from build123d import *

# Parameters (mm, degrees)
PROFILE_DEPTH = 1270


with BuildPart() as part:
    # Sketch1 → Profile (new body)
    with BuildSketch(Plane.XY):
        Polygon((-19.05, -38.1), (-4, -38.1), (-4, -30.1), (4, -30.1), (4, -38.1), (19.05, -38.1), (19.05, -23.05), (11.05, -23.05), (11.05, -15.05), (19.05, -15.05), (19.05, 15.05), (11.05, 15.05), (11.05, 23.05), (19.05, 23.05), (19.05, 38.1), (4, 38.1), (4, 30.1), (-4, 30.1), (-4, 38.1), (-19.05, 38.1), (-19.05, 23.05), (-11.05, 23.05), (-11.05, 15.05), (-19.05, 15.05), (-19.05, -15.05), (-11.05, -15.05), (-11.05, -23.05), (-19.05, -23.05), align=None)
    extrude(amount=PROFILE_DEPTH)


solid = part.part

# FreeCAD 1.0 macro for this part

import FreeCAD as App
import Part
import Sketcher

V = App.Vector
Q = App.Units.Quantity

doc = App.newDocument("Part")
body = doc.addObject("PartDesign::Body", "Body")

# Sketch on XY plane
sketch1 = body.newObject("Sketcher::SketchObject", "Sketch")
sketch1.AttachmentSupport = (doc.getObject("XY_Plane"), [""])
sketch1.MapMode = "FlatFace"
sketch1.addGeometry([
    Part.LineSegment(V(-19, -38, 0), V(-4, -38, 0)),  # 0
    Part.LineSegment(V(-4, -38, 0), V(-4, -30, 0)),  # 1
    Part.LineSegment(V(-4, -30, 0), V(4, -30, 0)),  # 2
    Part.LineSegment(V(4, -30, 0), V(4, -38, 0)),  # 3
    Part.LineSegment(V(4, -38, 0), V(19, -38, 0)),  # 4
    Part.LineSegment(V(19, -38, 0), V(19, -23, 0)),  # 5
    Part.LineSegment(V(19, -23, 0), V(11, -23, 0)),  # 6
    Part.LineSegment(V(11, -23, 0), V(11, -15, 0)),  # 7
    Part.LineSegment(V(11, -15, 0), V(19, -15, 0)),  # 8
    Part.LineSegment(V(19, -15, 0), V(19, 15, 0)),  # 9
    Part.LineSegment(V(19, 15, 0), V(11, 15, 0)),  # 10
    Part.LineSegment(V(11, 15, 0), V(11, 23, 0)),  # 11
    Part.LineSegment(V(11, 23, 0), V(19, 23, 0)),  # 12
    Part.LineSegment(V(19, 23, 0), V(19, 38, 0)),  # 13
    Part.LineSegment(V(19, 38, 0), V(4, 38, 0)),  # 14
    Part.LineSegment(V(4, 38, 0), V(4, 30, 0)),  # 15
    Part.LineSegment(V(4, 30, 0), V(-4, 30, 0)),  # 16
    Part.LineSegment(V(-4, 30, 0), V(-4, 38, 0)),  # 17
    Part.LineSegment(V(-4, 38, 0), V(-19, 38, 0)),  # 18
    Part.LineSegment(V(-19, 38, 0), V(-19, 23, 0)),  # 19
    Part.LineSegment(V(-19, 23, 0), V(-11, 23, 0)),  # 20
    Part.LineSegment(V(-11, 23, 0), V(-11, 15, 0)),  # 21
    Part.LineSegment(V(-11, 15, 0), V(-19, 15, 0)),  # 22
    Part.LineSegment(V(-19, 15, 0), V(-19, -15, 0)),  # 23
    Part.LineSegment(V(-19, -15, 0), V(-11, -15, 0)),  # 24
    Part.LineSegment(V(-11, -15, 0), V(-11, -23, 0)),  # 25
    Part.LineSegment(V(-11, -23, 0), V(-19, -23, 0)),  # 26
    Part.LineSegment(V(-19, -23, 0), V(-19, -38, 0)),  # 27
], False)
sketch1.addConstraint([
    Sketcher.Constraint("Coincident", 0, 2, 1, 1),
    Sketcher.Constraint("Coincident", 1, 2, 2, 1),
    Sketcher.Constraint("Coincident", 2, 2, 3, 1),
    Sketcher.Constraint("Coincident", 3, 2, 4, 1),
    Sketcher.Constraint("Coincident", 4, 2, 5, 1),
    Sketcher.Constraint("Coincident", 5, 2, 6, 1),
    Sketcher.Constraint("Coincident", 6, 2, 7, 1),
    Sketcher.Constraint("Coincident", 7, 2, 8, 1),
    Sketcher.Constraint("Coincident", 8, 2, 9, 1),
    Sketcher.Constraint("Coincident", 9, 2, 10, 1),
    Sketcher.Constraint("Coincident", 10, 2, 11, 1),
    Sketcher.Constraint("Coincident", 11, 2, 12, 1),
    Sketcher.Constraint("Coincident", 12, 2, 13, 1),
    Sketcher.Constraint("Coincident", 13, 2, 14, 1),
    Sketcher.Constraint("Coincident", 14, 2, 15, 1),
    Sketcher.Constraint("Coincident", 15, 2, 16, 1),
    Sketcher.Constraint("Coincident", 16, 2, 17, 1),
    Sketcher.Constraint("Coincident", 17, 2, 18, 1),
    Sketcher.Constraint("Coincident", 18, 2, 19, 1),
    Sketcher.Constraint("Coincident", 19, 2, 20, 1),
    Sketcher.Constraint("Coincident", 20, 2, 21, 1),
    Sketcher.Constraint("Coincident", 21, 2, 22, 1),
    Sketcher.Constraint("Coincident", 22, 2, 23, 1),
    Sketcher.Constraint("Coincident", 23, 2, 24, 1),
    Sketcher.Constraint("Coincident", 24, 2, 25, 1),
    Sketcher.Constraint("Coincident", 25, 2, 26, 1),
    Sketcher.Constraint("Coincident", 26, 2, 27, 1),
    Sketcher.Constraint("Coincident", 27, 2, 0, 1),
    Sketcher.Constraint("Horizontal", 0),
    Sketcher.Constraint("Vertical", 1),
    Sketcher.Constraint("Horizontal", 2),
    Sketcher.Constraint("Vertical", 3),
    Sketcher.Constraint("Horizontal", 4),
    Sketcher.Constraint("Vertical", 5),
    Sketcher.Constraint("Horizontal", 6),
    Sketcher.Constraint("Vertical", 7),
    Sketcher.Constraint("Horizontal", 8),
    Sketcher.Constraint("Vertical", 9),
    Sketcher.Constraint("Horizontal", 10),
    Sketcher.Constraint("Vertical", 11),
    Sketcher.Constraint("Horizontal", 12),
    Sketcher.Constraint("Vertical", 13),
    Sketcher.Constraint("Horizontal", 14),
    Sketcher.Constraint("Vertical", 15),
    Sketcher.Constraint("Horizontal", 16),
    Sketcher.Constraint("Vertical", 17),
    Sketcher.Constraint("Horizontal", 18),
    Sketcher.Constraint("Vertical", 19),
    Sketcher.Constraint("Horizontal", 20),
    Sketcher.Constraint("Vertical", 21),
    Sketcher.Constraint("Horizontal", 22),
    Sketcher.Constraint("Vertical", 23),
    Sketcher.Constraint("Horizontal", 24),
    Sketcher.Constraint("Vertical", 25),
    Sketcher.Constraint("Horizontal", 26),
    Sketcher.Constraint("Vertical", 27),
    Sketcher.Constraint("Symmetric", 0, 2, 14, 2, -1, 1),
    Sketcher.Constraint("Symmetric", 2, 2, 16, 2, -1, 1),
    Sketcher.Constraint("Symmetric", 4, 2, 18, 2, -1, 1),
    Sketcher.Constraint("Symmetric", 6, 2, 20, 2, -1, 1),
    Sketcher.Constraint("Symmetric", 8, 2, 22, 2, -1, 1),
    Sketcher.Constraint("Symmetric", 10, 2, 24, 2, -1, 1),
    Sketcher.Constraint("Symmetric", 12, 2, 26, 2, -1, 1),
    Sketcher.Constraint("Symmetric", 0, 2, 3, 2, -2),
    Sketcher.Constraint("Symmetric", 12, 2, 19, 2, -2),
    Sketcher.Constraint("Symmetric", 10, 2, 21, 2, -2),
    Sketcher.Constraint("Vertical", 5, 2, 8, 2),
    Sketcher.Constraint("Equal", 2, 6),
    Sketcher.Constraint("Equal", 26, 1),
    Sketcher.Constraint("Equal", 18, 5),
    Sketcher.Constraint("Equal", 3, 7),
    Sketcher.Constraint("DistanceX", 2, 1, 2, 2, Q("8 mm")),
    Sketcher.Constraint("DistanceY", 9, 1, 9, 2, Q("30.1 mm")),
    Sketcher.Constraint("DistanceX", 0, 1, 0, 2, Q("15.05 mm")),
])
pad1 = body.newObject("PartDesign::Pad", "Pad")
pad1.Profile = sketch1
pad1.Length = 1270

doc.recompute()
